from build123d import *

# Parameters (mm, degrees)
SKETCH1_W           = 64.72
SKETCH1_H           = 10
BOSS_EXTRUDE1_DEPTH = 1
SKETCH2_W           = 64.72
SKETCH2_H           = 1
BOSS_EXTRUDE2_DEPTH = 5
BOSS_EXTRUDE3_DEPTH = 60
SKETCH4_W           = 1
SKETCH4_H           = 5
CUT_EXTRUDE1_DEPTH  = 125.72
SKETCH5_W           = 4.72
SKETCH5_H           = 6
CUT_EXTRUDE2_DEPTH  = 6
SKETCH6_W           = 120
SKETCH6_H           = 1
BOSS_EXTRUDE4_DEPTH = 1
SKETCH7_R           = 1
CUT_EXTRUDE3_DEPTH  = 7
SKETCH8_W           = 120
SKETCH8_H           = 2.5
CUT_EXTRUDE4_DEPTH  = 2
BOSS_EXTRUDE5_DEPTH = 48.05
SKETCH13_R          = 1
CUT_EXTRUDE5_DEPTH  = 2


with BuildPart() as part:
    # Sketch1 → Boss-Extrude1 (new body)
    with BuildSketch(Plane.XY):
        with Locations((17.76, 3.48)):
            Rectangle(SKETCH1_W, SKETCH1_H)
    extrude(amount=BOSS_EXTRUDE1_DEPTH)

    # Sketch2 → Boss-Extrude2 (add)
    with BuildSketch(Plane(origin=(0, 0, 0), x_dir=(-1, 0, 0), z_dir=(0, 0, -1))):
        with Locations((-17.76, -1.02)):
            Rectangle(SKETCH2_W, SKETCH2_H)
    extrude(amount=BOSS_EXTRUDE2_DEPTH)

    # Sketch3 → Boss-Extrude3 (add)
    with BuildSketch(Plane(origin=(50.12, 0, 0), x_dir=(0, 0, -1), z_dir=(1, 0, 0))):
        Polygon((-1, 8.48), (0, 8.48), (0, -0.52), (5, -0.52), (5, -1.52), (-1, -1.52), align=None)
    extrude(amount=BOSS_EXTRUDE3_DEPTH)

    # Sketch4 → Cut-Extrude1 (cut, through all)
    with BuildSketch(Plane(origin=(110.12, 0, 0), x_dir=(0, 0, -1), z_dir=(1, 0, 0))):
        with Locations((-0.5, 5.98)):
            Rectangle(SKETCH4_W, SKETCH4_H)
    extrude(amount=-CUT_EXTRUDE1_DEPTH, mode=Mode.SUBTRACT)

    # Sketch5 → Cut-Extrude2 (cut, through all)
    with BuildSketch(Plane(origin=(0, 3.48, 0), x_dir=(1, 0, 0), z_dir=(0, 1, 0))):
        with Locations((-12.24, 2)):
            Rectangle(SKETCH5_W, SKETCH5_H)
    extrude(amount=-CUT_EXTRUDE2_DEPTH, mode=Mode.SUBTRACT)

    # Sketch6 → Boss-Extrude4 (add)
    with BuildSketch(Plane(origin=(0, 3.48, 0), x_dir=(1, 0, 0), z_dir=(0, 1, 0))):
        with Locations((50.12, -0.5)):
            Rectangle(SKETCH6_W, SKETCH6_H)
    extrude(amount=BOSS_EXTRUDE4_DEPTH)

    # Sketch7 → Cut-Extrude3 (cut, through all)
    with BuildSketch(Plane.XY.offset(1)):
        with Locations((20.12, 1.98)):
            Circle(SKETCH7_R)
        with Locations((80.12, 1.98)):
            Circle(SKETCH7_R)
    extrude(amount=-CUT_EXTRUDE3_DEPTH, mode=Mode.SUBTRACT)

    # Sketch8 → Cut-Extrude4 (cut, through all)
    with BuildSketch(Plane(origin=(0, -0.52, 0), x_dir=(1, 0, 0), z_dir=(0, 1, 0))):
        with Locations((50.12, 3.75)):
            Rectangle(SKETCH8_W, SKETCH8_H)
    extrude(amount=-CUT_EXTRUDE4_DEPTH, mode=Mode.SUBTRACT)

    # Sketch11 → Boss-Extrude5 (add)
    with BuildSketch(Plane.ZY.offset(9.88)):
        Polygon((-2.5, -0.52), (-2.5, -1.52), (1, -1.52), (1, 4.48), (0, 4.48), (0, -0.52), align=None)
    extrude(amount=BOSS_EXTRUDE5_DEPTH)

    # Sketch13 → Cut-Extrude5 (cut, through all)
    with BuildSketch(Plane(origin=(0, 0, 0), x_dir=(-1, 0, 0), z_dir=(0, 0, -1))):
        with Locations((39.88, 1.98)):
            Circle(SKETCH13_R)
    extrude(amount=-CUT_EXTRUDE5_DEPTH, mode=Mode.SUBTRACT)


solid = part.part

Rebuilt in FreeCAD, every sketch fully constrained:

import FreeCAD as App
import Part
import Sketcher

doc = App.newDocument("Part")
body = doc.addObject("PartDesign::Body", "Body")

# Sketch on XY plane
sketch1 = body.newObject("Sketcher::SketchObject", "Sketch")
sketch1.AttachmentSupport = (doc.getObject("XY_Plane"), [""])
sketch1.MapMode = "FlatFace"
sketch1.addGeometry([
    Part.LineSegment(App.Vector(-14.6, 8.48, 0), App.Vector(-14.6, -1.52, 0)),
    Part.LineSegment(App.Vector(-14.6, -1.52, 0), App.Vector(50.12, -1.52, 0)),
    Part.LineSegment(App.Vector(50.12, -1.52, 0), App.Vector(50.12, 8.48, 0)),
    Part.LineSegment(App.Vector(50.12, 8.48, 0), App.Vector(-14.6, 8.48, 0)),
], False)
sketch1.addConstraint([
    Sketcher.Constraint("Coincident", 0, 2, 1, 1),
    Sketcher.Constraint("Coincident", 1, 2, 2, 1),
    Sketcher.Constraint("Coincident", 2, 2, 3, 1),
    Sketcher.Constraint("Coincident", 3, 2, 0, 1),
    Sketcher.Constraint("Vertical", 0),
    Sketcher.Constraint("Horizontal", 1),
    Sketcher.Constraint("Vertical", 2),
    Sketcher.Constraint("Horizontal", 3),
    Sketcher.Constraint("DistanceY", 0, 2, 0, 1, 10.0),
    Sketcher.Constraint("DistanceX", 1, 1, 1, 2, 64.72),
    Sketcher.Constraint("DistanceX", 0, 2, -1, 1, 14.6),
    Sketcher.Constraint("DistanceY", 0, 2, -1, 1, 1.52),
])
pad1 = body.newObject("PartDesign::Pad", "Pad")
pad1.Profile = sketch1
pad1.Length = 1

# Sketch on XY plane
sketch2 = body.newObject("Sketcher::SketchObject", "Sketch001")
sketch2.AttachmentSupport = (doc.getObject("XY_Plane"), [""])
sketch2.MapMode = "FlatFace"
sketch2.addGeometry([
    Part.LineSegment(App.Vector(50.12, -0.52, 0), App.Vector(50.12, -1.52, 0)),
    Part.LineSegment(App.Vector(50.12, -1.52, 0), App.Vector(-14.6, -1.52, 0)),
    Part.LineSegment(App.Vector(-14.6, -1.52, 0), App.Vector(-14.6, -0.52, 0)),
    Part.LineSegment(App.Vector(-14.6, -0.52, 0), App.Vector(50.12, -0.52, 0)),
], False)
sketch2.addConstraint([
    Sketcher.Constraint("Coincident", 0, 2, 1, 1),
    Sketcher.Constraint("Coincident", 1, 2, 2, 1),
    Sketcher.Constraint("Coincident", 2, 2, 3, 1),
    Sketcher.Constraint("Coincident", 3, 2, 0, 1),
    Sketcher.Constraint("Vertical", 0),
    Sketcher.Constraint("Horizontal", 1),
    Sketcher.Constraint("Vertical", 2),
    Sketcher.Constraint("Horizontal", 3),
    Sketcher.Constraint("DistanceY", 0, 2, 0, 1, 1.0),
    Sketcher.Constraint("DistanceX", 1, 2, 1, 1, 64.72),
    Sketcher.Constraint("DistanceX", 1, 2, -1, 1, 14.6),
    Sketcher.Constraint("DistanceY", 0, 2, -1, 1, 1.52),
])
pad2 = body.newObject("PartDesign::Pad", "Pad001")
pad2.Profile = sketch2
pad2.Length = 5
pad2.Reversed = True

# Sketch on YZ plane
sketch3 = body.newObject("Sketcher::SketchObject", "Sketch002")
sketch3.AttachmentSupport = (doc.getObject("YZ_Plane"), [""])
sketch3.MapMode = "FlatFace"
sketch3.AttachmentOffset = App.Placement(App.Vector(0, 0, 50.12), App.Rotation())
sketch3.addGeometry([
    Part.LineSegment(App.Vector(8.48, 0, 0), App.Vector(8.48, 1, 0)),  # 0
    Part.LineSegment(App.Vector(8.48, 1, 0), App.Vector(-1.52, 1, 0)),  # 1
    Part.LineSegment(App.Vector(-1.52, 1, 0), App.Vector(-1.52, -5, 0)),  # 2
    Part.LineSegment(App.Vector(-1.52, -5, 0), App.Vector(-0.52, -5, 0)),  # 3
    Part.LineSegment(App.Vector(-0.52, -5, 0), App.Vector(-0.52, 0, 0)),  # 4
    Part.LineSegment(App.Vector(-0.52, 0, 0), App.Vector(8.48, 0, 0)),  # 5
], False)
sketch3.addConstraint([
    Sketcher.Constraint("Coincident", 0, 2, 1, 1),
    Sketcher.Constraint("Coincident", 1, 2, 2, 1),
    Sketcher.Constraint("Coincident", 2, 2, 3, 1),
    Sketcher.Constraint("Coincident", 3, 2, 4, 1),
    Sketcher.Constraint("Coincident", 4, 2, 5, 1),
    Sketcher.Constraint("Coincident", 5, 2, 0, 1),
    Sketcher.Constraint("Vertical", 0),
    Sketcher.Constraint("Horizontal", 1),
    Sketcher.Constraint("Vertical", 2),
    Sketcher.Constraint("Horizontal", 3),
    Sketcher.Constraint("Vertical", 4),
    Sketcher.Constraint("Horizontal", 5),
    Sketcher.Constraint("PointOnObject", 4, 2, -1),
    Sketcher.Constraint("Equal", 3, 0),
    Sketcher.Constraint("DistanceX", 1, 2, 1, 1, 10.0),
    Sketcher.Constraint("DistanceX", 3, 1, 3, 2, 1.0),
    Sketcher.Constraint("DistanceY", 2, 2, 2, 1, 6.0),
    Sketcher.Constraint("DistanceX", -1, 1, 0, 2, 8.48),
])
pad3 = body.newObject("PartDesign::Pad", "Pad002")
pad3.Profile = sketch3
pad3.Length = 60

# Sketch on YZ plane
sketch4 = body.newObject("Sketcher::SketchObject", "Sketch003")
sketch4.AttachmentSupport = (doc.getObject("YZ_Plane"), [""])
sketch4.MapMode = "FlatFace"
sketch4.AttachmentOffset = App.Placement(App.Vector(0, 0, 110.12), App.Rotation())
sketch4.addGeometry([
    Part.LineSegment(App.Vector(8.48, 1, 0), App.Vector(3.48, 1, 0)),
    Part.LineSegment(App.Vector(3.48, 1, 0), App.Vector(3.48, 0, 0)),
    Part.LineSegment(App.Vector(3.48, 0, 0), App.Vector(8.48, 0, 0)),
    Part.LineSegment(App.Vector(8.48, 0, 0), App.Vector(8.48, 1, 0)),
], False)
sketch4.addConstraint([
    Sketcher.Constraint("Coincident", 0, 2, 1, 1),
    Sketcher.Constraint("Coincident", 1, 2, 2, 1),
    Sketcher.Constraint("Coincident", 2, 2, 3, 1),
    Sketcher.Constraint("Coincident", 3, 2, 0, 1),
    Sketcher.Constraint("Horizontal", 0),
    Sketcher.Constraint("Vertical", 1),
    Sketcher.Constraint("Horizontal", 2),
    Sketcher.Constraint("Vertical", 3),
    Sketcher.Constraint("PointOnObject", 1, 2, -1),
    Sketcher.Constraint("DistanceX", 0, 2, 0, 1, 5.0),
    Sketcher.Constraint("DistanceY", 1, 2, 1, 1, 1.0),
    Sketcher.Constraint("DistanceX", -1, 1, 0, 2, 3.48),
])
pocket1 = body.newObject("PartDesign::Pocket", "Pocket")
pocket1.Profile = sketch4
pocket1.Type = "ThroughAll"

# Sketch on XZ plane
sketch5 = body.newObject("Sketcher::SketchObject", "Sketch004")
sketch5.AttachmentSupport = (doc.getObject("XZ_Plane"), [""])
sketch5.MapMode = "FlatFace"
sketch5.AttachmentOffset = App.Placement(App.Vector(0, 0, -3.48), App.Rotation())
sketch5.addGeometry([
    Part.LineSegment(App.Vector(-14.6, -5, 0), App.Vector(-14.6, 1, 0)),
    Part.LineSegment(App.Vector(-14.6, 1, 0), App.Vector(-9.88, 1, 0)),
    Part.LineSegment(App.Vector(-9.88, 1, 0), App.Vector(-9.88, -5, 0)),
    Part.LineSegment(App.Vector(-9.88, -5, 0), App.Vector(-14.6, -5, 0)),
], False)
sketch5.addConstraint([
    Sketcher.Constraint("Coincident", 0, 2, 1, 1),
    Sketcher.Constraint("Coincident", 1, 2, 2, 1),
    Sketcher.Constraint("Coincident", 2, 2, 3, 1),
    Sketcher.Constraint("Coincident", 3, 2, 0, 1),
    Sketcher.Constraint("Vertical", 0),
    Sketcher.Constraint("Horizontal", 1),
    Sketcher.Constraint("Vertical", 2),
    Sketcher.Constraint("Horizontal", 3),
    Sketcher.Constraint("DistanceY", 0, 1, 0, 2, 6.0),
    Sketcher.Constraint("DistanceY", -1, 1, 0, 2, 1.0),
    Sketcher.Constraint("DistanceX", 1, 1, 1, 2, 4.72),
    Sketcher.Constraint("DistanceX", 0, 2, -1, 1, 14.6),
])
pocket2 = body.newObject("PartDesign::Pocket", "Pocket001")
pocket2.Profile = sketch5
pocket2.Type = "ThroughAll"
pocket2.Reversed = True

# Sketch on XZ plane
sketch6 = body.newObject("Sketcher::SketchObject", "Sketch005")
sketch6.AttachmentSupport = (doc.getObject("XZ_Plane"), [""])
sketch6.MapMode = "FlatFace"
sketch6.AttachmentOffset = App.Placement(App.Vector(0, 0, -3.48), App.Rotation())
sketch6.addGeometry([
    Part.LineSegment(App.Vector(-9.88, 0, 0), App.Vector(-9.88, 1, 0)),
    Part.LineSegment(App.Vector(-9.88, 1, 0), App.Vector(110.12, 1, 0)),
    Part.LineSegment(App.Vector(110.12, 1, 0), App.Vector(110.12, 0, 0)),
    Part.LineSegment(App.Vector(110.12, 0, 0), App.Vector(-9.88, 0, 0)),
], False)
sketch6.addConstraint([
    Sketcher.Constraint("Coincident", 0, 2, 1, 1),
    Sketcher.Constraint("Coincident", 1, 2, 2, 1),
    Sketcher.Constraint("Coincident", 2, 2, 3, 1),
    Sketcher.Constraint("Coincident", 3, 2, 0, 1),
    Sketcher.Constraint("Vertical", 0),
    Sketcher.Constraint("Horizontal", 1),
    Sketcher.Constraint("Vertical", 2),
    Sketcher.Constraint("Horizontal", 3),
    Sketcher.Constraint("PointOnObject", 2, 2, -1),
    Sketcher.Constraint("DistanceX", 1, 1, 1, 2, 120.0),
    Sketcher.Constraint("DistanceY", 0, 1, 0, 2, 1.0),
    Sketcher.Constraint("DistanceX", 0, 2, -1, 1, 9.88),
])
pad4 = body.newObject("PartDesign::Pad", "Pad003")
pad4.Profile = sketch6
pad4.Length = 1
pad4.Reversed = True

# Sketch on XY plane
sketch7 = body.newObject("Sketcher::SketchObject", "Sketch006")
sketch7.AttachmentSupport = (doc.getObject("XY_Plane"), [""])
sketch7.MapMode = "FlatFace"
sketch7.AttachmentOffset = App.Placement(App.Vector(0, 0, 1), App.Rotation())
sketch7.addGeometry([
    Part.Circle(App.Vector(20.12, 1.98, 0), App.Vector(0, 0, 1), 1),
    Part.Circle(App.Vector(80.12, 1.98, 0), App.Vector(0, 0, 1), 1),
], False)
sketch7.addConstraint([
    Sketcher.Constraint("Equal", 0, 1),
    Sketcher.Constraint("Horizontal", 0, 3, 1, 3),
    Sketcher.Constraint("Diameter", 0, 2.0),
    Sketcher.Constraint("DistanceX", 0, 3, 1, 3, 60.0),
    Sketcher.Constraint("DistanceX", -1, 1, 0, 3, 20.12),
    Sketcher.Constraint("DistanceY", -1, 1, 0, 3, 1.98),
])
pocket3 = body.newObject("PartDesign::Pocket", "Pocket002")
pocket3.Profile = sketch7
pocket3.Type = "ThroughAll"

# Sketch on XZ plane
sketch8 = body.newObject("Sketcher::SketchObject", "Sketch007")
sketch8.AttachmentSupport = (doc.getObject("XZ_Plane"), [""])
sketch8.MapMode = "FlatFace"
sketch8.AttachmentOffset = App.Placement(App.Vector(0, 0, 0.52), App.Rotation())
sketch8.addGeometry([
    Part.LineSegment(App.Vector(-9.88, -5, 0), App.Vector(-9.88, -2.5, 0)),
    Part.LineSegment(App.Vector(-9.88, -2.5, 0), App.Vector(110.12, -2.5, 0)),
    Part.LineSegment(App.Vector(110.12, -2.5, 0), App.Vector(110.12, -5, 0)),
    Part.LineSegment(App.Vector(110.12, -5, 0), App.Vector(-9.88, -5, 0)),
], False)
sketch8.addConstraint([
    Sketcher.Constraint("Coincident", 0, 2, 1, 1),
    Sketcher.Constraint("Coincident", 1, 2, 2, 1),
    Sketcher.Constraint("Coincident", 2, 2, 3, 1),
    Sketcher.Constraint("Coincident", 3, 2, 0, 1),
    Sketcher.Constraint("Vertical", 0),
    Sketcher.Constraint("Horizontal", 1),
    Sketcher.Constraint("Vertical", 2),
    Sketcher.Constraint("Horizontal", 3),
    Sketcher.Constraint("DistanceX", 1, 1, 1, 2, 120.0),
    Sketcher.Constraint("DistanceY", 0, 1, 0, 2, 2.5),
    Sketcher.Constraint("DistanceY", 2, 2, -1, 1, 5.0),
    Sketcher.Constraint("DistanceX", 0, 2, -1, 1, 9.88),
])
pocket4 = body.newObject("PartDesign::Pocket", "Pocket003")
pocket4.Profile = sketch8
pocket4.Type = "ThroughAll"
pocket4.Reversed = True

# Sketch on YZ plane
sketch9 = body.newObject("Sketcher::SketchObject", "Sketch008")
sketch9.AttachmentSupport = (doc.getObject("YZ_Plane"), [""])
sketch9.MapMode = "FlatFace"
sketch9.AttachmentOffset = App.Placement(App.Vector(0, 0, -9.88), App.Rotation())
sketch9.addGeometry([
    Part.LineSegment(App.Vector(-0.52, -2.5, 0), App.Vector(-1.52, -2.5, 0)),  # 0
    Part.LineSegment(App.Vector(-1.52, -2.5, 0), App.Vector(-1.52, 1, 0)),  # 1
    Part.LineSegment(App.Vector(-1.52, 1, 0), App.Vector(4.48, 1, 0)),  # 2
    Part.LineSegment(App.Vector(4.48, 1, 0), App.Vector(4.48, 0, 0)),  # 3
    Part.LineSegment(App.Vector(4.48, 0, 0), App.Vector(-0.52, 0, 0)),  # 4
    Part.LineSegment(App.Vector(-0.52, 0, 0), App.Vector(-0.52, -2.5, 0)),  # 5
], False)
sketch9.addConstraint([
    Sketcher.Constraint("Coincident", 0, 2, 1, 1),
    Sketcher.Constraint("Coincident", 1, 2, 2, 1),
    Sketcher.Constraint("Coincident", 2, 2, 3, 1),
    Sketcher.Constraint("Coincident", 3, 2, 4, 1),
    Sketcher.Constraint("Coincident", 4, 2, 5, 1),
    Sketcher.Constraint("Coincident", 5, 2, 0, 1),
    Sketcher.Constraint("Horizontal", 0),
    Sketcher.Constraint("Vertical", 1),
    Sketcher.Constraint("Horizontal", 2),
    Sketcher.Constraint("Vertical", 3),
    Sketcher.Constraint("Horizontal", 4),
    Sketcher.Constraint("Vertical", 5),
    Sketcher.Constraint("PointOnObject", 3, 2, -1),
    Sketcher.Constraint("Equal", 0, 3),
    Sketcher.Constraint("DistanceX", 0, 2, 0, 1, 1.0),
    Sketcher.Constraint("DistanceX", 2, 1, 2, 2, 6.0),
    Sketcher.Constraint("DistanceY", 1, 1, 1, 2, 3.5),
    Sketcher.Constraint("DistanceX", 0, 2, -1, 1, 1.52),
])
pad5 = body.newObject("PartDesign::Pad", "Pad004")
pad5.Profile = sketch9
pad5.Length = 48.05
pad5.Reversed = True

# Sketch on XY plane
sketch10 = body.newObject("Sketcher::SketchObject", "Sketch009")
sketch10.AttachmentSupport = (doc.getObject("XY_Plane"), [""])
sketch10.MapMode = "FlatFace"
sketch10.addGeometry(Part.Circle(App.Vector(-39.88, 1.98, 0), App.Vector(0, 0, 1), 1), False)
sketch10.addConstraint([
    Sketcher.Constraint("Diameter", 0, 2.0),
    Sketcher.Constraint("DistanceX", 0, 3, -1, 1, 39.88),
    Sketcher.Constraint("DistanceY", -1, 1, 0, 3, 1.98),
])
pocket5 = body.newObject("PartDesign::Pocket", "Pocket004")
pocket5.Profile = sketch10
pocket5.Type = "ThroughAll"
pocket5.Reversed = True

doc.recompute()
